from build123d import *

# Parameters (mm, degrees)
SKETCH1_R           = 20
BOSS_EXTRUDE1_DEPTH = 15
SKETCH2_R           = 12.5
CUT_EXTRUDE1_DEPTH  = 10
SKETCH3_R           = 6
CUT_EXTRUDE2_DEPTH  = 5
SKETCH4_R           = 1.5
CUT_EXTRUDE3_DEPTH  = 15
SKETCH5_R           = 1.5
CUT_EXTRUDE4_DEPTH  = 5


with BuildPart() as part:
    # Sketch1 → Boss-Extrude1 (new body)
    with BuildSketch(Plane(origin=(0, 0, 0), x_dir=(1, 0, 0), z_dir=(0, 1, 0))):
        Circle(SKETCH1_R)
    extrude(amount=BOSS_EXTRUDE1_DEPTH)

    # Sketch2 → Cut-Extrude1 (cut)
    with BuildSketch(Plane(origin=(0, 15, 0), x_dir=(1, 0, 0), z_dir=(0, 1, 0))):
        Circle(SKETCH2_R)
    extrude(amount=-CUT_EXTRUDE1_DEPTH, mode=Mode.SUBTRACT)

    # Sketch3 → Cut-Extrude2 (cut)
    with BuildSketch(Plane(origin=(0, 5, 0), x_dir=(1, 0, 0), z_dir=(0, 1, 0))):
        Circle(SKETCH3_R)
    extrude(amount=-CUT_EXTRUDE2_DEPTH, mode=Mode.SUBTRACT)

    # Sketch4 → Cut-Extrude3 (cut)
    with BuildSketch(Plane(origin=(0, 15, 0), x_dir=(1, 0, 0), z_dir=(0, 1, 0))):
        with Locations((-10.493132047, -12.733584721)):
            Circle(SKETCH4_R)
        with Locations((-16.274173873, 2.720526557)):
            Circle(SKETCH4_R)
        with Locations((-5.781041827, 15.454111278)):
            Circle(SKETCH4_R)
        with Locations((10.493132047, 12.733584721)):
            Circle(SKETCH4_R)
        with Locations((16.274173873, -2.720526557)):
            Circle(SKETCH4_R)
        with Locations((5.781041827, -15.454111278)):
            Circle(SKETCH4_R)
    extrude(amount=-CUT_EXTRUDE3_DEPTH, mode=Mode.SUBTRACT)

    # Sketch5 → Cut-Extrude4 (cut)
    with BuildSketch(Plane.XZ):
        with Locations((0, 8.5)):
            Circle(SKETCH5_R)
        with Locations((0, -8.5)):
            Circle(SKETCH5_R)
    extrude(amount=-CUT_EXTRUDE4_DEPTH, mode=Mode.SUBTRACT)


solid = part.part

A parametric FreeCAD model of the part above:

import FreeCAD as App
import Part
import Sketcher
from FreeCAD import Vector

doc = App.newDocument("Part")
body = doc.addObject("PartDesign::Body", "Body")

# Sketch on XZ plane
sketch1 = body.newObject("Sketcher::SketchObject", "Sketch")
sketch1.AttachmentSupport = (doc.getObject("XZ_Plane"), [""])
sketch1.MapMode = "FlatFace"
sketch1.addGeometry(Part.Circle(Vector(0, 0, 0), Vector(0, 0, 1), 20), False)
sketch1.addConstraint([
    Sketcher.Constraint("Coincident", 0, 3, -1, 1),
    Sketcher.Constraint("Diameter", 0, 40.0),
])
pad1 = body.newObject("PartDesign::Pad", "Pad")
pad1.Profile = sketch1
pad1.Length = 15
pad1.Reversed = True

# Sketch on XZ plane
sketch2 = body.newObject("Sketcher::SketchObject", "Sketch001")
sketch2.AttachmentSupport = (doc.getObject("XZ_Plane"), [""])
sketch2.MapMode = "FlatFace"
sketch2.AttachmentOffset = App.Placement(Vector(0, 0, -15), App.Rotation())
sketch2.addGeometry(Part.Circle(Vector(0, 0, 0), Vector(0, 0, 1), 12), False)
sketch2.addConstraint([
    Sketcher.Constraint("Coincident", 0, 3, -1, 1),
    Sketcher.Constraint("Diameter", 0, 25.0),
])
pocket1 = body.newObject("PartDesign::Pocket", "Pocket")
pocket1.Profile = sketch2
pocket1.Length = 10
pocket1.Reversed = True

# Sketch on XZ plane
sketch3 = body.newObject("Sketcher::SketchObject", "Sketch002")
sketch3.AttachmentSupport = (doc.getObject("XZ_Plane"), [""])
sketch3.MapMode = "FlatFace"
sketch3.AttachmentOffset = App.Placement(Vector(0, 0, -5), App.Rotation())
sketch3.addGeometry(Part.Circle(Vector(0, 0, 0), Vector(0, 0, 1), 6), False)
sketch3.addConstraint([
    Sketcher.Constraint("Coincident", 0, 3, -1, 1),
    Sketcher.Constraint("Diameter", 0, 12.0),
])
pocket2 = body.newObject("PartDesign::Pocket", "Pocket001")
pocket2.Profile = sketch3
pocket2.Length = 5
pocket2.Reversed = True

# Sketch on XZ plane
sketch4 = body.newObject("Sketcher::SketchObject", "Sketch003")
sketch4.AttachmentSupport = (doc.getObject("XZ_Plane"), [""])
sketch4.MapMode = "FlatFace"
sketch4.AttachmentOffset = App.Placement(Vector(0, 0, -15), App.Rotation())
sketch4.addGeometry([
    Part.Circle(Vector(-10.5, 12.7, 0), Vector(0, 0, 1), 1.5),  # 0
    Part.Circle(Vector(-16.3, -2.7, 0), Vector(0, 0, 1), 1.5),  # 1
    Part.Circle(Vector(-5.8, -15.5, 0), Vector(0, 0, 1), 1.5),  # 2
    Part.Circle(Vector(10.5, -12.7, 0), Vector(0, 0, 1), 1.5),  # 3
    Part.Circle(Vector(16.3, 2.7, 0), Vector(0, 0, 1), 1.5),  # 4
    Part.Circle(Vector(5.8, 15.5, 0), Vector(0, 0, 1), 1.5),  # 5
], False)
sketch4.addConstraint([
    Sketcher.Constraint("Equal", 0, 1),
    Sketcher.Constraint("Equal", 1, 2),
    Sketcher.Constraint("Equal", 2, 3),
    Sketcher.Constraint("Equal", 3, 4),
    Sketcher.Constraint("Equal", 4, 5),
    Sketcher.Constraint("Symmetric", 0, 3, 3, 3, -1, 1),
    Sketcher.Constraint("Symmetric", 1, 3, 4, 3, -1, 1),
    Sketcher.Constraint("Symmetric", 2, 3, 5, 3, -1, 1),
    Sketcher.Constraint("Diameter", 0, 3.0),
    Sketcher.Constraint("DistanceX", 2, 3, -1, 1, 5.781042),
    Sketcher.Constraint("DistanceY", 2, 3, -1, 1, 15.454111),
    Sketcher.Constraint("DistanceX", 1, 3, 0, 3, 5.781042),
    Sketcher.Constraint("DistanceY", 1, 3, 0, 3, 15.454111),
    Sketcher.Constraint("DistanceX", 0, 3, 2, 3, 4.71209),
    Sketcher.Constraint("DistanceY", 3, 3, 1, 3, 10.013058),
])
pocket3 = body.newObject("PartDesign::Pocket", "Pocket002")
pocket3.Profile = sketch4
pocket3.Length = 15
pocket3.Reversed = True

# Sketch on XZ plane
sketch5 = body.newObject("Sketcher::SketchObject", "Sketch004")
sketch5.AttachmentSupport = (doc.getObject("XZ_Plane"), [""])
sketch5.MapMode = "FlatFace"
sketch5.addGeometry([
    Part.Circle(Vector(0, 8.5, 0), Vector(0, 0, 1), 1.5),
    Part.Circle(Vector(0, -8.5, 0), Vector(0, 0, 1), 1.5),
], False)
sketch5.addConstraint([
    Sketcher.Constraint("Equal", 0, 1),
    Sketcher.Constraint("Symmetric", 0, 3, 1, 3, -1, 1),
    Sketcher.Constraint("PointOnObject", 0, 3, -2),
    Sketcher.Constraint("Diameter", 0, 3.0),
    Sketcher.Constraint("DistanceY", 1, 3, 0, 3, 17.0),
])
pocket4 = body.newObject("PartDesign::Pocket", "Pocket003")
pocket4.Profile = sketch5
pocket4.Length = 5

doc.recompute()
